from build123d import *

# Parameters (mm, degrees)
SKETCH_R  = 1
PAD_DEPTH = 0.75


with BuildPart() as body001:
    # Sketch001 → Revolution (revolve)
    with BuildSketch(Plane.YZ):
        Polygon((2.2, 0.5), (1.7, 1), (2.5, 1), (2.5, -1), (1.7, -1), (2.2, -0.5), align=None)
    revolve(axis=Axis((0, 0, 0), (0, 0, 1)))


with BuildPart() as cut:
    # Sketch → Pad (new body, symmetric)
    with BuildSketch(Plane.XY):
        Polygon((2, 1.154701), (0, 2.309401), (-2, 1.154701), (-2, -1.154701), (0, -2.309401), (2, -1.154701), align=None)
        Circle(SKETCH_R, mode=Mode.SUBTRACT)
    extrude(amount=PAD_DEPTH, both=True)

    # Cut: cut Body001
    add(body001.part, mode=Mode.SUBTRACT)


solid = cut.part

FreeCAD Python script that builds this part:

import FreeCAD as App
import Part
import Sketcher
Q = App.Units.Quantity

doc = App.newDocument("Part")
body = doc.addObject("PartDesign::Body", "Body")

# Sketch on YZ plane
sketch1 = body.newObject("Sketcher::SketchObject", "Sketch")
sketch1.AttachmentSupport = (doc.getObject("YZ_Plane"), [""])
sketch1.MapMode = "FlatFace"
sketch1.addGeometry([
    Part.LineSegment(App.Vector(1.7, 1, 0), App.Vector(2.2, 0.5, 0)),  # 0
    Part.LineSegment(App.Vector(2.2, 0.5, 0), App.Vector(2.2, -0.5, 0)),  # 1
    Part.LineSegment(App.Vector(2.2, -0.5, 0), App.Vector(1.7, -1, 0)),  # 2
    Part.LineSegment(App.Vector(1.7, -1, 0), App.Vector(2.5, -1, 0)),  # 3
    Part.LineSegment(App.Vector(2.5, -1, 0), App.Vector(2.5, 1, 0)),  # 4
    Part.LineSegment(App.Vector(2.5, 1, 0), App.Vector(1.7, 1, 0)),  # 5
], False)
sketch1.addConstraint([
    Sketcher.Constraint("Coincident", 0, 2, 1, 1),
    Sketcher.Constraint("Coincident", 1, 2, 2, 1),
    Sketcher.Constraint("Coincident", 2, 2, 3, 1),
    Sketcher.Constraint("Coincident", 3, 2, 4, 1),
    Sketcher.Constraint("Coincident", 4, 2, 5, 1),
    Sketcher.Constraint("Coincident", 5, 2, 0, 1),
    Sketcher.Constraint("Vertical", 1),
    Sketcher.Constraint("Horizontal", 3),
    Sketcher.Constraint("Vertical", 4),
    Sketcher.Constraint("Horizontal", 5),
    Sketcher.Constraint("Symmetric", 2, 2, 5, 2, -1),
    Sketcher.Constraint("Perpendicular", 0, 2),
    Sketcher.Constraint("Equal", 0, 2),
    Sketcher.Constraint("DistanceY", 1, 2, 1, 1, Q("1 mm")),
    Sketcher.Constraint("DistanceY", 4, 1, 4, 2, Q("2 mm")),
    Sketcher.Constraint("DistanceX", 3, 1, 3, 2, Q("0.8 mm")),
    Sketcher.Constraint("DistanceX", -1, 1, 0, 2, Q("2.2 mm")),
])
revolution = body.newObject("PartDesign::Revolution", "Revolution")
revolution.Profile = sketch1
revolution.ReferenceAxis = (sketch1, ["V_Axis"])
revolution.Angle = 360
body2 = doc.addObject("PartDesign::Body", "Body001")

# Sketch on XY plane
sketch2 = body2.newObject("Sketcher::SketchObject", "Sketch001")
sketch2.AttachmentSupport = (doc.getObject("XY_Plane001"), [""])
sketch2.MapMode = "FlatFace"
sketch2.addGeometry([
    Part.LineSegment(App.Vector(2, 1.2, 0), App.Vector(0, 2.3, 0)),  # 0
    Part.LineSegment(App.Vector(0, 2.3, 0), App.Vector(-2, 1.2, 0)),  # 1
    Part.LineSegment(App.Vector(-2, 1.2, 0), App.Vector(-2, -1.2, 0)),  # 2
    Part.LineSegment(App.Vector(-2, -1.2, 0), App.Vector(0, -2.3, 0)),  # 3
    Part.LineSegment(App.Vector(0, -2.3, 0), App.Vector(2, -1.2, 0)),  # 4
    Part.LineSegment(App.Vector(2, -1.2, 0), App.Vector(2, 1.2, 0)),  # 5
    Part.Circle(App.Vector(0, 0, 0), App.Vector(0, 0, 1), 1),  # 6
], False)
sketch2.addConstraint([
    Sketcher.Constraint("Coincident", 0, 2, 1, 1),
    Sketcher.Constraint("Coincident", 1, 2, 2, 1),
    Sketcher.Constraint("Coincident", 2, 2, 3, 1),
    Sketcher.Constraint("Coincident", 3, 2, 4, 1),
    Sketcher.Constraint("Coincident", 4, 2, 5, 1),
    Sketcher.Constraint("Coincident", 5, 2, 0, 1),
    Sketcher.Constraint("Vertical", 2),
    Sketcher.Constraint("Vertical", 5),
    Sketcher.Constraint("Coincident", 6, 3, -1, 1),
    Sketcher.Constraint("Symmetric", 0, 2, 3, 2, -1, 1),
    Sketcher.Constraint("Symmetric", 1, 2, 4, 2, -1, 1),
    Sketcher.Constraint("PointOnObject", 0, 2, -2),
    Sketcher.Constraint("Parallel", 0, 3),
    Sketcher.Constraint("Horizontal", 2, 2, 4, 2),
    Sketcher.Constraint("Diameter", 6, Q("2 mm")),
    Sketcher.Constraint("Angle", 0, Q("150.000012 deg")),
    Sketcher.Constraint("DistanceX", 1, 2, -1, 1, Q("2 mm")),
    Sketcher.Constraint("DistanceY", 2, 2, 2, 1, Q("2.309402 mm")),
])
pad1 = body2.newObject("PartDesign::Pad", "Pad")
pad1.Profile = sketch2
pad1.Length = 1.5
pad1.Midplane = True
doc.recompute()

boolean = body2.newObject("PartDesign::Boolean", "Boolean")
boolean.Type = "Cut"
boolean.addObjects([body])

doc.recompute()
